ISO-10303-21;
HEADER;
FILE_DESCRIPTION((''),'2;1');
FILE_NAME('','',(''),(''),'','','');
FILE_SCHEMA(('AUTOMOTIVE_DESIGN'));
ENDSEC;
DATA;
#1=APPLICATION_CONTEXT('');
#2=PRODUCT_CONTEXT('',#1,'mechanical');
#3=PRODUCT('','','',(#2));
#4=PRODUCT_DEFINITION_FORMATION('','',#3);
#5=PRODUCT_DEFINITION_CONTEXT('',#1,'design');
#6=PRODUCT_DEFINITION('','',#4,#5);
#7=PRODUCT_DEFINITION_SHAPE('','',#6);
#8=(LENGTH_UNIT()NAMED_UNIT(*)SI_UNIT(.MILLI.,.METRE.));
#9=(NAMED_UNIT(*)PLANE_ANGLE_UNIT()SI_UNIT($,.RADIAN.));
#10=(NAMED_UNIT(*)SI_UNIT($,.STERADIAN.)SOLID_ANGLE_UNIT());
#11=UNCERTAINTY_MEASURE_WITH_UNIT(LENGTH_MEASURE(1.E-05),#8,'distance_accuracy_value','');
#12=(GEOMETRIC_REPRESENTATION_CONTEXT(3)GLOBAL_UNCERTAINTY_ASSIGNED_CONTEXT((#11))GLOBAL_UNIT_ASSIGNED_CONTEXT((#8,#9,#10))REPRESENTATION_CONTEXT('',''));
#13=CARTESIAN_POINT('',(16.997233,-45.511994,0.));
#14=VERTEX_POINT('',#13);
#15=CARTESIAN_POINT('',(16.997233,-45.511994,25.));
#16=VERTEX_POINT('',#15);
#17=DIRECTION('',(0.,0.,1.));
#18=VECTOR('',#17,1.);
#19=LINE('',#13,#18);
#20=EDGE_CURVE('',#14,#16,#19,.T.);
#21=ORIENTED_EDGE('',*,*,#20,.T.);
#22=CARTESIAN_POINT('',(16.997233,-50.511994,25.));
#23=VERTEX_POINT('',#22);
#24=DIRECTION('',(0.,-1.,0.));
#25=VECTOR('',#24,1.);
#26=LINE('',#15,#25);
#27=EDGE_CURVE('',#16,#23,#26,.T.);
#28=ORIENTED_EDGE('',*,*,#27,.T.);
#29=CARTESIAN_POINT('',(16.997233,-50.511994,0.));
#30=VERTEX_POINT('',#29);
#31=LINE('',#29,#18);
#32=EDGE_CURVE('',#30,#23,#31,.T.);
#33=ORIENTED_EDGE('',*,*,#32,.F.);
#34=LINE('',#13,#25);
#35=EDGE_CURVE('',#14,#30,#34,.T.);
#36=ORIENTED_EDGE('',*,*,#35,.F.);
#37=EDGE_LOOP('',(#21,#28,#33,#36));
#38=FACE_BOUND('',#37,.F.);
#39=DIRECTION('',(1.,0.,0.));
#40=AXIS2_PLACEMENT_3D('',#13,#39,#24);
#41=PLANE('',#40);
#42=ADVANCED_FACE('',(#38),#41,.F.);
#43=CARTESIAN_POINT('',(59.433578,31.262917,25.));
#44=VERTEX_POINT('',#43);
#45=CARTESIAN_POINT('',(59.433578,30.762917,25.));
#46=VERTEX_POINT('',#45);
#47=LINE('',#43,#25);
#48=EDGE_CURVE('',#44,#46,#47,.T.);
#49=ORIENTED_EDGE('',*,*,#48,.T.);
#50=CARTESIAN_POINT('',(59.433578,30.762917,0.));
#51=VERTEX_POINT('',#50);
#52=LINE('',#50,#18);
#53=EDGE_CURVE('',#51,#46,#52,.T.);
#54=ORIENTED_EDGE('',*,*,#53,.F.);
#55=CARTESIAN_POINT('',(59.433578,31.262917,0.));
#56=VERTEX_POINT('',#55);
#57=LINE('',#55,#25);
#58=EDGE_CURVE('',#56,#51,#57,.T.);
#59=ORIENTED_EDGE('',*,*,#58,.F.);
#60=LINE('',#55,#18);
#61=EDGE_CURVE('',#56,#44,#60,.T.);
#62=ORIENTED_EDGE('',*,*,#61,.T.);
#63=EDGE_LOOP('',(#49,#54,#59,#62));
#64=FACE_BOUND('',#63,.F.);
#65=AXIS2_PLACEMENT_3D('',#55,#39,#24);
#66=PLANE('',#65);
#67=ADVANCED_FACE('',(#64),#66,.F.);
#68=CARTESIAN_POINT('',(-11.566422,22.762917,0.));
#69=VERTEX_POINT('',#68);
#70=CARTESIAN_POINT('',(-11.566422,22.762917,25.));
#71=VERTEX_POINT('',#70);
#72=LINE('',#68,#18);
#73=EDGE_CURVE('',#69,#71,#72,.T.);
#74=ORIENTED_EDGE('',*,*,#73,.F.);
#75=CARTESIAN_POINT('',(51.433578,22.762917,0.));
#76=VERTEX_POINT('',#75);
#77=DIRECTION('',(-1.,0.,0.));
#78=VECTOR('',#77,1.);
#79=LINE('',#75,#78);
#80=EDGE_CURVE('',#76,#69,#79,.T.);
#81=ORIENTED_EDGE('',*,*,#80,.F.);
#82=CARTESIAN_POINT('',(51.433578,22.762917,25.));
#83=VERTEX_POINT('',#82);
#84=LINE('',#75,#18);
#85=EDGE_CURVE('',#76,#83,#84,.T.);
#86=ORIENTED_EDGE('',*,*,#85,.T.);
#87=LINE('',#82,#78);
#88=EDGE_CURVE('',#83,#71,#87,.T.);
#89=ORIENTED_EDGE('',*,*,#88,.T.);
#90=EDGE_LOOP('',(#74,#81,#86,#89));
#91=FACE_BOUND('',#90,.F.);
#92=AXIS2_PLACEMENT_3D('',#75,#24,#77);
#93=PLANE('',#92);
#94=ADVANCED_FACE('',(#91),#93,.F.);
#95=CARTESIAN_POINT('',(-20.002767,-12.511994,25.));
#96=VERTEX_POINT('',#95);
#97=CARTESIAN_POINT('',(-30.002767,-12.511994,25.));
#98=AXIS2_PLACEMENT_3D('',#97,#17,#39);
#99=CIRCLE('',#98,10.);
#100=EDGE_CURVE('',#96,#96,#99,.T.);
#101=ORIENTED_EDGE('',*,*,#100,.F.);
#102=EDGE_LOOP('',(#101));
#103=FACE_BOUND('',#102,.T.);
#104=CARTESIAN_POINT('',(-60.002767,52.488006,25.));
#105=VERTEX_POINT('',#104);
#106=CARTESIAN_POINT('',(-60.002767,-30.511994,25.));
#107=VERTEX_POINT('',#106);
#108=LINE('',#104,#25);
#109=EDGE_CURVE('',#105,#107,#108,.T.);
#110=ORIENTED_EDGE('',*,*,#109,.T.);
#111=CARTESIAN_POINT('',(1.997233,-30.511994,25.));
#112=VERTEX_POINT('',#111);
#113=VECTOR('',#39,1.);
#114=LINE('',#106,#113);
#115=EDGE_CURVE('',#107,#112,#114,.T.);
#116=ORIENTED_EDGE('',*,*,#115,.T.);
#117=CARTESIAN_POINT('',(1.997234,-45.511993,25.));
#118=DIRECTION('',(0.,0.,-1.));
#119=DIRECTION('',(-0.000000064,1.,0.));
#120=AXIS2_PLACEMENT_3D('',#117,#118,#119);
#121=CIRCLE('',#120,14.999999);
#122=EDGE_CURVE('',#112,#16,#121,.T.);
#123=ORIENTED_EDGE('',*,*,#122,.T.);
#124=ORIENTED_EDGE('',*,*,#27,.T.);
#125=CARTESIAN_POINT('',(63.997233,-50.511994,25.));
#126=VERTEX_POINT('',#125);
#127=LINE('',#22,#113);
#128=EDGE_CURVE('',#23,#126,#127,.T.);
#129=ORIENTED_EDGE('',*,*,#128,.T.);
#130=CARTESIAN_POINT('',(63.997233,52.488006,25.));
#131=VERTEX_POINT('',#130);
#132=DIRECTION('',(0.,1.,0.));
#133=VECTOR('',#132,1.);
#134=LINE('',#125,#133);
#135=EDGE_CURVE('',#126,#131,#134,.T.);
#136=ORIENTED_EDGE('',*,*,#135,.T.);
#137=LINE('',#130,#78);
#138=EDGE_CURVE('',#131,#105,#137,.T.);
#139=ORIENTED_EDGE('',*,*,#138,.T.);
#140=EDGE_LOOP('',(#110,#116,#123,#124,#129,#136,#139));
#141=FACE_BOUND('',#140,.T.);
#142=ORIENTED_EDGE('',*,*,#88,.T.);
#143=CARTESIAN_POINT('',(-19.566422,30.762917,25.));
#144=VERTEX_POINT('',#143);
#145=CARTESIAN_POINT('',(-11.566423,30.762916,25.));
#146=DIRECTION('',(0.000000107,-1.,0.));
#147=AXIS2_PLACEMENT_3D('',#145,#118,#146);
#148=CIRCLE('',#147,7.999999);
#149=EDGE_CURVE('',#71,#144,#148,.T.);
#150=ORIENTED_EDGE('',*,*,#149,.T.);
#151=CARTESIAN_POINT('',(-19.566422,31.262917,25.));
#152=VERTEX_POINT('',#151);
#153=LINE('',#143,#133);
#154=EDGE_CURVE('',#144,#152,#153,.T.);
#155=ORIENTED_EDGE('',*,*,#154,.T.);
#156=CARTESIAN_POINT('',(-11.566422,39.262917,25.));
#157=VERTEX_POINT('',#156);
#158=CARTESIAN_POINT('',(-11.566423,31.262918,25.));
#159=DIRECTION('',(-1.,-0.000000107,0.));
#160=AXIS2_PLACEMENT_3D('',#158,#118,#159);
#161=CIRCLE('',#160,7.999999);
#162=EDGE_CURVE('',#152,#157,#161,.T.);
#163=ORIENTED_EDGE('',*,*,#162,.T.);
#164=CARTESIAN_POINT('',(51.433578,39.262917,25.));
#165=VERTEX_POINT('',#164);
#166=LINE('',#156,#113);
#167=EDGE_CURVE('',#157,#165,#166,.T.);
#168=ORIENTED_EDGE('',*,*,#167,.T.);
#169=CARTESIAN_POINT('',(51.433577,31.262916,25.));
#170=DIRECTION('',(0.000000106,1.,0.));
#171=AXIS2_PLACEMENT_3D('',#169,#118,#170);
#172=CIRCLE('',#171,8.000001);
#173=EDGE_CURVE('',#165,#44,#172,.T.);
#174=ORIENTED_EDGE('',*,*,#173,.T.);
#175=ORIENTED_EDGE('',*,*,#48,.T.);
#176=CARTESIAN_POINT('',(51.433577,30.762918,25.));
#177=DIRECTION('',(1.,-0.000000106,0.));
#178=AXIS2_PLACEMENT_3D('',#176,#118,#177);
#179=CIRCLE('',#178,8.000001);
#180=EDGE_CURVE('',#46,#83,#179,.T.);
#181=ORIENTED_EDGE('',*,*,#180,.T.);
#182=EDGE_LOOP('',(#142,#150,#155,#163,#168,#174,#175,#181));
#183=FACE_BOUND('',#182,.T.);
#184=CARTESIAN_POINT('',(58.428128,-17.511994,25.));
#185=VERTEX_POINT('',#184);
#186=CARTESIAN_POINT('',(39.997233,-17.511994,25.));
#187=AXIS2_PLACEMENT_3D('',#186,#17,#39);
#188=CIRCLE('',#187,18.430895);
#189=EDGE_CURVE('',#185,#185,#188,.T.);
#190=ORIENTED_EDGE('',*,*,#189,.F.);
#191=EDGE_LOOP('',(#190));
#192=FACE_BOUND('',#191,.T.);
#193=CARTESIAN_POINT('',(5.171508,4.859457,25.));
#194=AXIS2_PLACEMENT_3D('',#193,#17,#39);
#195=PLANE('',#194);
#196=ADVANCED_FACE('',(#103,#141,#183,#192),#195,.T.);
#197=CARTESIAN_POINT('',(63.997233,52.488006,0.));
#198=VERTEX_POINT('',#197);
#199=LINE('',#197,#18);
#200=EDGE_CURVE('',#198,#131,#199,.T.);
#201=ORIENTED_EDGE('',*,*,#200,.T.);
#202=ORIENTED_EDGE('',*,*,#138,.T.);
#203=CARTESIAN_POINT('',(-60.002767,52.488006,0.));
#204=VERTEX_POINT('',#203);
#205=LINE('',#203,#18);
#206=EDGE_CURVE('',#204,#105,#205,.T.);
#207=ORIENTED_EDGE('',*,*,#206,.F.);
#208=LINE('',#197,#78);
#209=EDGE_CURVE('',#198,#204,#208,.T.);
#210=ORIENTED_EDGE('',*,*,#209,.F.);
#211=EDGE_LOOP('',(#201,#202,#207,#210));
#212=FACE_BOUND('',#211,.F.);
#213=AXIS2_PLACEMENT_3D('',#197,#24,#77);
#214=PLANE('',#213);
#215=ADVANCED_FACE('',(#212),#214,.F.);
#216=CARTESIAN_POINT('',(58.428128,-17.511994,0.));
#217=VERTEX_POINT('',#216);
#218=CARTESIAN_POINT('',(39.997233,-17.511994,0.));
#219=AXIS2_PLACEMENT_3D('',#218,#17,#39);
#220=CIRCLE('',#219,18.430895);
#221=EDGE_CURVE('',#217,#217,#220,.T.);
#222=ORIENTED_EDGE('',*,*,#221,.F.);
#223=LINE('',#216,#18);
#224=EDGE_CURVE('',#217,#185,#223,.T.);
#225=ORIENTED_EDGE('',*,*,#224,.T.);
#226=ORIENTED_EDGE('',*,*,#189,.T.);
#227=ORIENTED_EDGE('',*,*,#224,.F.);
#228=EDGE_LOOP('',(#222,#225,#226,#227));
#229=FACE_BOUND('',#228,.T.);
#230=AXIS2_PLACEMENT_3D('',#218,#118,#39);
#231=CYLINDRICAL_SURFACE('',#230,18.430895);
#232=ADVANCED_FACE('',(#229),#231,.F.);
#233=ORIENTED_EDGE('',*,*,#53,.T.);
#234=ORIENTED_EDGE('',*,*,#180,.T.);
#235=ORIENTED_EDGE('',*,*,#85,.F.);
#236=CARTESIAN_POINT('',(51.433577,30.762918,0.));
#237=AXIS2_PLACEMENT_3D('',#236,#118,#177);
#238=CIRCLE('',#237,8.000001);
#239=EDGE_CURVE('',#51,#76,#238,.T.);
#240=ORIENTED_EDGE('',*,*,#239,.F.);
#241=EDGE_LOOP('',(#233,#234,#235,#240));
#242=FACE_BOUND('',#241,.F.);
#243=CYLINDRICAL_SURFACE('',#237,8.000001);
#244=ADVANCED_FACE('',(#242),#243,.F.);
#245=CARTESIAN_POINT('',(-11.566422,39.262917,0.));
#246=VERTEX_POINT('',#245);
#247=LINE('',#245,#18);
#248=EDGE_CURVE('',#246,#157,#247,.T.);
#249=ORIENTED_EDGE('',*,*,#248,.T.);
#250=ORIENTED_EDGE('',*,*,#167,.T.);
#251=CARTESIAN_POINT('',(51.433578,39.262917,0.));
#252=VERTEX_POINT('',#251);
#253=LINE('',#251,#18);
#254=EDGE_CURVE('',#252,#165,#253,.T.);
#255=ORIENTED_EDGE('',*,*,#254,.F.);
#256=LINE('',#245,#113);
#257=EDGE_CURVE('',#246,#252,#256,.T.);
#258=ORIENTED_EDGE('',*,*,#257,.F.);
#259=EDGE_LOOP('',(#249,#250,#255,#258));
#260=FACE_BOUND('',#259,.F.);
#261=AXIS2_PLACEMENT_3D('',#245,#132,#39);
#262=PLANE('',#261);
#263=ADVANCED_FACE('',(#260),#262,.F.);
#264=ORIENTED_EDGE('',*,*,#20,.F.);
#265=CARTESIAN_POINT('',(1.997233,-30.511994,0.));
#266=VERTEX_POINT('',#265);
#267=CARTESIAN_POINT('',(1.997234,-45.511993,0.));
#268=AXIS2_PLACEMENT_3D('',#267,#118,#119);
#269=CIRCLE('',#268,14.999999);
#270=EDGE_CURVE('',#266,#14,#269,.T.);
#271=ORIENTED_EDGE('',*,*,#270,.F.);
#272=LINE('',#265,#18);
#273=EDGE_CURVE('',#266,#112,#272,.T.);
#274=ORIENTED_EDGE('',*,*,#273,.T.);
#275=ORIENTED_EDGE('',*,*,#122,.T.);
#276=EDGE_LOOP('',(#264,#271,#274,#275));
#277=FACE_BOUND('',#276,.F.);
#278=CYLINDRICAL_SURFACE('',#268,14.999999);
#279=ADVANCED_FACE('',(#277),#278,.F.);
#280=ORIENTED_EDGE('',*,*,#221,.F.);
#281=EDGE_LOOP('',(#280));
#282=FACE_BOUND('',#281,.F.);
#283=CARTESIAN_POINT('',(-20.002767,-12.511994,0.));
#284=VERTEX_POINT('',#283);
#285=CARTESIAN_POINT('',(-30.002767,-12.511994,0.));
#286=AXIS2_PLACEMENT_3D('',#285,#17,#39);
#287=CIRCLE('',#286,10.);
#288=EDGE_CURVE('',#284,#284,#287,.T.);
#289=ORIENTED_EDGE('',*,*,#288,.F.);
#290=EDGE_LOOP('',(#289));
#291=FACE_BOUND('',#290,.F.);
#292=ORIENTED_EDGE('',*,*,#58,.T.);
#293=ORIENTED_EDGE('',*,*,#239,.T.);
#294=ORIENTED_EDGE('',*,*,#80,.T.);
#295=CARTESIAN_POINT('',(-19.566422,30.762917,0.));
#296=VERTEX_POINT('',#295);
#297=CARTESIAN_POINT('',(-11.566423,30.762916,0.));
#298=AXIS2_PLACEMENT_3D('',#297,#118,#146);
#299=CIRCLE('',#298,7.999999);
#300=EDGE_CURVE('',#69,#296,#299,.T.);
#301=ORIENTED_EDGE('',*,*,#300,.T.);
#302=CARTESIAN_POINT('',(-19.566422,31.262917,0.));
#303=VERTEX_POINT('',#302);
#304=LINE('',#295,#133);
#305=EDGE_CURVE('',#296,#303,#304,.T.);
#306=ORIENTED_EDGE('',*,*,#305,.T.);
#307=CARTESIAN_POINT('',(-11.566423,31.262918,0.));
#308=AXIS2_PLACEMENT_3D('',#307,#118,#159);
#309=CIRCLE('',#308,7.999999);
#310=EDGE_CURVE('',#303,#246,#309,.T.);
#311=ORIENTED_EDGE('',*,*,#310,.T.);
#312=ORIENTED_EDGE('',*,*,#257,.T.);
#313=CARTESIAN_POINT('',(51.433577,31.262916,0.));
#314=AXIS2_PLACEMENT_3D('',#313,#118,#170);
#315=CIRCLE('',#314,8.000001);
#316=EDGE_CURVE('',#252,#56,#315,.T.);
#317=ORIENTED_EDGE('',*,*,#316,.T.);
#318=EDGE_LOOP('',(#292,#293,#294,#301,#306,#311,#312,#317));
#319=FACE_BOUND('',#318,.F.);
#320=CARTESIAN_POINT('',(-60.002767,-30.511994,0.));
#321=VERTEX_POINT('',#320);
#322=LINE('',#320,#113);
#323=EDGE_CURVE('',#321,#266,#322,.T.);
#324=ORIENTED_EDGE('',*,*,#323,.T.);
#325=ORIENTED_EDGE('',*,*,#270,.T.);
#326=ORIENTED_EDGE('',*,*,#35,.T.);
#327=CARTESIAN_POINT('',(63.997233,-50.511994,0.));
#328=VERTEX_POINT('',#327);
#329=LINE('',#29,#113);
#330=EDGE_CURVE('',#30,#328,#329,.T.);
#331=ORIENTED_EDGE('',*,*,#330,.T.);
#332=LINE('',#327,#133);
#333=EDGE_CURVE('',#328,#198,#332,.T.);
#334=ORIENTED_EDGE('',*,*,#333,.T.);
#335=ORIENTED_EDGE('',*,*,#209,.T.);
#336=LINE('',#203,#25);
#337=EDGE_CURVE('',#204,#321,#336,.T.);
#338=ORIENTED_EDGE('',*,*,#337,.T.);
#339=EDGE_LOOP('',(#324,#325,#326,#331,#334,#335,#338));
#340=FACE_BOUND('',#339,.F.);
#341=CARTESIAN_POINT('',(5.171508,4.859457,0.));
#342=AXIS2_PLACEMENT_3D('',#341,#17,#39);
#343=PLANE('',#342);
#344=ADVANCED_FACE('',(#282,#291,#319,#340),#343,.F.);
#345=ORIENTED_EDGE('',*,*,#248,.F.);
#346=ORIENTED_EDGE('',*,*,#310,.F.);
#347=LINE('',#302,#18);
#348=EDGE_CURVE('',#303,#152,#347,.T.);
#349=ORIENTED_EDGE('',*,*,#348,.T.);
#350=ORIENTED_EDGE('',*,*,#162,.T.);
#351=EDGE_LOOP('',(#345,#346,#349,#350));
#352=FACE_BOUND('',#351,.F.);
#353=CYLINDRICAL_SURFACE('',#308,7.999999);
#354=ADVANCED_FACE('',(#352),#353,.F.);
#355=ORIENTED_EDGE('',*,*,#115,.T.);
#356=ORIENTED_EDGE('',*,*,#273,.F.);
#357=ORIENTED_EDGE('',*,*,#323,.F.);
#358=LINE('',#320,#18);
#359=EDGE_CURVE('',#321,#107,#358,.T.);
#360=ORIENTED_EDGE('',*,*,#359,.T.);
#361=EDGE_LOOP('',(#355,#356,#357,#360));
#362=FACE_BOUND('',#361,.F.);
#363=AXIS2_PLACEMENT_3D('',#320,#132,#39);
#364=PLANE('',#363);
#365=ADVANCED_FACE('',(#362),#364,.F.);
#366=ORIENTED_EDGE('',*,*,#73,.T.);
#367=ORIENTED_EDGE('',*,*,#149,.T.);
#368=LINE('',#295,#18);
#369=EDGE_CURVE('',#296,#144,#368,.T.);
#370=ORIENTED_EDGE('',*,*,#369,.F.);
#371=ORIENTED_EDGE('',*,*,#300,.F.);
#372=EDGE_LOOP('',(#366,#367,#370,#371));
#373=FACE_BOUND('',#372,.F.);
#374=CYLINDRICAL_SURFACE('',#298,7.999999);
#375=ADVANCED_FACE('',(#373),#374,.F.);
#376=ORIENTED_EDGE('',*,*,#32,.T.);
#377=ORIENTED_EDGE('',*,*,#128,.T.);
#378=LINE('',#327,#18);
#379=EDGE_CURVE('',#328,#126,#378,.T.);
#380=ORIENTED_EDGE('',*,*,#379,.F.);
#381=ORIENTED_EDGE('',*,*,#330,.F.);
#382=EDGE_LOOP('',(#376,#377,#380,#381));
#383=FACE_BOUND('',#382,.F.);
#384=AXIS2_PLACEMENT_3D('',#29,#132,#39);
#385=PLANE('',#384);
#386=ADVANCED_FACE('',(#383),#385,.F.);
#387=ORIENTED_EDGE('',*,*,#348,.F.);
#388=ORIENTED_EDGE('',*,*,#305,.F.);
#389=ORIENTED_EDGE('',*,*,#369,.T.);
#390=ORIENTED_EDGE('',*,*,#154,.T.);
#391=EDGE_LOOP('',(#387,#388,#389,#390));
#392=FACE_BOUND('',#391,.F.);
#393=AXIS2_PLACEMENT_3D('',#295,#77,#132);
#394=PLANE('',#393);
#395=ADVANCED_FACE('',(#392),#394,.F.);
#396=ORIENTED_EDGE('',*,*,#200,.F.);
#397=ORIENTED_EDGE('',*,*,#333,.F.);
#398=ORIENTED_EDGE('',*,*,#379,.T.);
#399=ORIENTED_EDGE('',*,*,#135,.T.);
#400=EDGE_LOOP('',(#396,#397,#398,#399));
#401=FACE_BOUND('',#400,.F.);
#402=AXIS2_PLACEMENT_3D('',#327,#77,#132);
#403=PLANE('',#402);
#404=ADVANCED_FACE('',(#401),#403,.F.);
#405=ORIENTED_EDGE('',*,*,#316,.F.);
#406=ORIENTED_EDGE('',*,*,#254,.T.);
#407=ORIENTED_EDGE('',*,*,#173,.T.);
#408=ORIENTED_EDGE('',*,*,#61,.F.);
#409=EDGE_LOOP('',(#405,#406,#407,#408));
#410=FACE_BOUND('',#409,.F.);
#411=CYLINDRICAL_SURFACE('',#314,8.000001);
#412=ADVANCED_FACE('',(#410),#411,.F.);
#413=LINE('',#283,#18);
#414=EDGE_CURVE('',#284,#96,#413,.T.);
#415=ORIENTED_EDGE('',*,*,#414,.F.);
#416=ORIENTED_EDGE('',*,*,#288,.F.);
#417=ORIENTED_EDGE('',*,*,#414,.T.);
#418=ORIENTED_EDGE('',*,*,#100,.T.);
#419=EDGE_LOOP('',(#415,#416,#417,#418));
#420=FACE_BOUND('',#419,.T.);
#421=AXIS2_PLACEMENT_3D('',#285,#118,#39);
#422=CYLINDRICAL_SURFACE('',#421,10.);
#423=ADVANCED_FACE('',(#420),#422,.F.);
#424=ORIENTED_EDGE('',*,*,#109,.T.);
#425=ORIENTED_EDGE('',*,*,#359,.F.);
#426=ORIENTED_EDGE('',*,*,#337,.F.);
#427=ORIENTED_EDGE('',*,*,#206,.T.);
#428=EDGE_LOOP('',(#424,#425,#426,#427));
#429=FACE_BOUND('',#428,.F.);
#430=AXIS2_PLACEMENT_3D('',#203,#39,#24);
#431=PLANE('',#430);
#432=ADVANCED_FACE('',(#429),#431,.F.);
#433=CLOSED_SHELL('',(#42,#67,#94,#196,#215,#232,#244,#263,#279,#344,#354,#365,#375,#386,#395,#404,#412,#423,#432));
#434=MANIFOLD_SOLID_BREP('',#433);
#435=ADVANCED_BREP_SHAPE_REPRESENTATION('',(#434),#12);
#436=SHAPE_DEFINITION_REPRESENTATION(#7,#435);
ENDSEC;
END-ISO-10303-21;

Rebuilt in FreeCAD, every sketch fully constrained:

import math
import FreeCAD as App
import Part
import Sketcher

V = App.Vector
Q = App.Units.Quantity

doc = App.newDocument("Part")
body = doc.addObject("PartDesign::Body", "Body")

sketch1 = body.newObject("Sketcher::SketchObject", "Sketch")
sketch1.AttachmentSupport = (doc.getObject("XY_Plane"), [""])
sketch1.MapMode = "FlatFace"
sketch1.addGeometry(Part.LineSegment(V(63.997233, 52.488006, 0), V(-60.002767, 52.488006, 0)), False)
sketch1.addGeometry(Part.LineSegment(V(-60.002767, 52.488006, 0), V(-60.002767, -30.511994, 0)), False)
sketch1.addGeometry(Part.LineSegment(V(-60.002767, -30.511994, 0), V(1.997233, -30.511994, 0)), False)
sketch1.addGeometry(Part.ArcOfCircle(Part.Circle(V(1.997234, -45.511993, 0), V(0, 0, 1), 14.999999), math.radians(-0.000004), math.radians(90.000004)), False)
sketch1.addGeometry(Part.LineSegment(V(16.997233, -45.511994, 0), V(16.997233, -50.511994, 0)), False)
sketch1.addGeometry(Part.LineSegment(V(16.997233, -50.511994, 0), V(63.997233, -50.511994, 0)), False)
sketch1.addGeometry(Part.LineSegment(V(63.997233, -50.511994, 0), V(63.997233, 52.488006, 0)), False)
sketch1.addGeometry(Part.Circle(V(-30.002767, -12.511994, 0), V(0, 0, 1), 10), False)
sketch1.addGeometry(Part.Circle(V(39.997233, -17.511994, 0), V(0, 0, 1), 18.430895), False)
sketch1.addGeometry(Part.ArcOfCircle(Part.Circle(V(-11.566423, 31.262918, 0), V(0, 0, 1), 7.999999), math.radians(89.999994), math.radians(180.000006)), False)
sketch1.addGeometry(Part.LineSegment(V(-11.566422, 39.262917, 0), V(51.433578, 39.262917, 0)), False)
sketch1.addGeometry(Part.ArcOfCircle(Part.Circle(V(51.433577, 31.262916, 0), V(0, 0, 1), 8.000001), math.radians(0.000006), math.radians(89.999994)), False)
sketch1.addGeometry(Part.LineSegment(V(59.433578, 31.262917, 0), V(59.433578, 30.762917, 0)), False)
sketch1.addGeometry(Part.ArcOfCircle(Part.Circle(V(51.433577, 30.762918, 0), V(0, 0, 1), 8.000001), math.radians(-89.999994), math.radians(-0.000006)), False)
sketch1.addGeometry(Part.LineSegment(V(51.433578, 22.762917, 0), V(-11.566422, 22.762917, 0)), False)
sketch1.addGeometry(Part.ArcOfCircle(Part.Circle(V(-11.566423, 30.762916, 0), V(0, 0, 1), 7.999999), math.radians(179.999994), math.radians(270.000006)), False)
sketch1.addGeometry(Part.LineSegment(V(-19.566422, 30.762917, 0), V(-19.566422, 31.262917, 0)), False)
sketch1.addConstraint(Sketcher.Constraint("Coincident", 0, 2, 1, 1))
sketch1.addConstraint(Sketcher.Constraint("Coincident", 1, 2, 2, 1))
sketch1.addConstraint(Sketcher.Constraint("Tangent", 2, 2, 3, 2))
sketch1.addConstraint(Sketcher.Constraint("Tangent", 3, 1, 4, 1))
sketch1.addConstraint(Sketcher.Constraint("Coincident", 4, 2, 5, 1))
sketch1.addConstraint(Sketcher.Constraint("Coincident", 5, 2, 6, 1))
sketch1.addConstraint(Sketcher.Constraint("Coincident", 6, 2, 0, 1))
sketch1.addConstraint(Sketcher.Constraint("Tangent", 9, 1, 10, 1))
sketch1.addConstraint(Sketcher.Constraint("Tangent", 10, 2, 11, 2))
sketch1.addConstraint(Sketcher.Constraint("Tangent", 11, 1, 12, 1))
sketch1.addConstraint(Sketcher.Constraint("Tangent", 12, 2, 13, 2))
sketch1.addConstraint(Sketcher.Constraint("Tangent", 13, 1, 14, 1))
sketch1.addConstraint(Sketcher.Constraint("Tangent", 14, 2, 15, 2))
sketch1.addConstraint(Sketcher.Constraint("Tangent", 15, 1, 16, 1))
sketch1.addConstraint(Sketcher.Constraint("Tangent", 16, 2, 9, 2))
sketch1.addConstraint(Sketcher.Constraint("Horizontal", 0))
sketch1.addConstraint(Sketcher.Constraint("Vertical", 1))
sketch1.addConstraint(Sketcher.Constraint("Horizontal", 2))
sketch1.addConstraint(Sketcher.Constraint("Vertical", 4))
sketch1.addConstraint(Sketcher.Constraint("Horizontal", 5))
sketch1.addConstraint(Sketcher.Constraint("Vertical", 6))
sketch1.addConstraint(Sketcher.Constraint("Horizontal", 10))
sketch1.addConstraint(Sketcher.Constraint("Vertical", 12))
sketch1.addConstraint(Sketcher.Constraint("Horizontal", 14))
sketch1.addConstraint(Sketcher.Constraint("Vertical", 16))
sketch1.addConstraint(Sketcher.Constraint("Equal", 9, 11))
sketch1.addConstraint(Sketcher.Constraint("Equal", 11, 13))
sketch1.addConstraint(Sketcher.Constraint("Equal", 13, 15))
sketch1.addConstraint(Sketcher.Constraint("Diameter", 7, Q("20 mm")))
sketch1.addConstraint(Sketcher.Constraint("Radius", 3, Q("14.999999 mm")))
sketch1.addConstraint(Sketcher.Constraint("Radius", 9, Q("7.999999 mm")))
sketch1.addConstraint(Sketcher.Constraint("DistanceX", 0, 2, 0, 1, Q("124 mm")))
sketch1.addConstraint(Sketcher.Constraint("DistanceX", 2, 1, 2, 2, Q("62 mm")))
sketch1.addConstraint(Sketcher.Constraint("DistanceX", 10, 1, 10, 2, Q("63 mm")))
sketch1.addConstraint(Sketcher.Constraint("DistanceY", 1, 2, 1, 1, Q("83 mm")))
sketch1.addConstraint(Sketcher.Constraint("DistanceY", 4, 2, 4, 1, Q("5 mm")))
sketch1.addConstraint(Sketcher.Constraint("DistanceY", 12, 2, 12, 1, Q("0.5 mm")))
sketch1.addConstraint(Sketcher.Constraint("DistanceX", 7, 3, 3, 3, Q("32.000001 mm")))
sketch1.addConstraint(Sketcher.Constraint("DistanceY", 3, 3, 7, 3, Q("32.999999 mm")))
sketch1.addConstraint(Sketcher.Constraint("DistanceX", 3, 3, 8, 3, Q("37.999999 mm")))
sketch1.addConstraint(Sketcher.Constraint("DistanceY", 3, 3, 8, 3, Q("27.999999 mm")))
sketch1.addConstraint(Sketcher.Constraint("Diameter", 8, Q("36.86179 mm")))
sketch1.addConstraint(Sketcher.Constraint("DistanceX", 9, 1, -1, 1, Q("11.566422 mm")))
sketch1.addConstraint(Sketcher.Constraint("DistanceY", 7, 3, 9, 3, Q("43.774912 mm")))
sketch1.addConstraint(Sketcher.Constraint("DistanceX", -1, 1, 3, 3, Q("1.997234 mm")))
sketch1.addConstraint(Sketcher.Constraint("DistanceY", 3, 3, -1, 1, Q("45.511993 mm")))
pad1 = body.newObject("PartDesign::Pad", "Pad")
pad1.Profile = sketch1
pad1.Length = 25

doc.recompute()
